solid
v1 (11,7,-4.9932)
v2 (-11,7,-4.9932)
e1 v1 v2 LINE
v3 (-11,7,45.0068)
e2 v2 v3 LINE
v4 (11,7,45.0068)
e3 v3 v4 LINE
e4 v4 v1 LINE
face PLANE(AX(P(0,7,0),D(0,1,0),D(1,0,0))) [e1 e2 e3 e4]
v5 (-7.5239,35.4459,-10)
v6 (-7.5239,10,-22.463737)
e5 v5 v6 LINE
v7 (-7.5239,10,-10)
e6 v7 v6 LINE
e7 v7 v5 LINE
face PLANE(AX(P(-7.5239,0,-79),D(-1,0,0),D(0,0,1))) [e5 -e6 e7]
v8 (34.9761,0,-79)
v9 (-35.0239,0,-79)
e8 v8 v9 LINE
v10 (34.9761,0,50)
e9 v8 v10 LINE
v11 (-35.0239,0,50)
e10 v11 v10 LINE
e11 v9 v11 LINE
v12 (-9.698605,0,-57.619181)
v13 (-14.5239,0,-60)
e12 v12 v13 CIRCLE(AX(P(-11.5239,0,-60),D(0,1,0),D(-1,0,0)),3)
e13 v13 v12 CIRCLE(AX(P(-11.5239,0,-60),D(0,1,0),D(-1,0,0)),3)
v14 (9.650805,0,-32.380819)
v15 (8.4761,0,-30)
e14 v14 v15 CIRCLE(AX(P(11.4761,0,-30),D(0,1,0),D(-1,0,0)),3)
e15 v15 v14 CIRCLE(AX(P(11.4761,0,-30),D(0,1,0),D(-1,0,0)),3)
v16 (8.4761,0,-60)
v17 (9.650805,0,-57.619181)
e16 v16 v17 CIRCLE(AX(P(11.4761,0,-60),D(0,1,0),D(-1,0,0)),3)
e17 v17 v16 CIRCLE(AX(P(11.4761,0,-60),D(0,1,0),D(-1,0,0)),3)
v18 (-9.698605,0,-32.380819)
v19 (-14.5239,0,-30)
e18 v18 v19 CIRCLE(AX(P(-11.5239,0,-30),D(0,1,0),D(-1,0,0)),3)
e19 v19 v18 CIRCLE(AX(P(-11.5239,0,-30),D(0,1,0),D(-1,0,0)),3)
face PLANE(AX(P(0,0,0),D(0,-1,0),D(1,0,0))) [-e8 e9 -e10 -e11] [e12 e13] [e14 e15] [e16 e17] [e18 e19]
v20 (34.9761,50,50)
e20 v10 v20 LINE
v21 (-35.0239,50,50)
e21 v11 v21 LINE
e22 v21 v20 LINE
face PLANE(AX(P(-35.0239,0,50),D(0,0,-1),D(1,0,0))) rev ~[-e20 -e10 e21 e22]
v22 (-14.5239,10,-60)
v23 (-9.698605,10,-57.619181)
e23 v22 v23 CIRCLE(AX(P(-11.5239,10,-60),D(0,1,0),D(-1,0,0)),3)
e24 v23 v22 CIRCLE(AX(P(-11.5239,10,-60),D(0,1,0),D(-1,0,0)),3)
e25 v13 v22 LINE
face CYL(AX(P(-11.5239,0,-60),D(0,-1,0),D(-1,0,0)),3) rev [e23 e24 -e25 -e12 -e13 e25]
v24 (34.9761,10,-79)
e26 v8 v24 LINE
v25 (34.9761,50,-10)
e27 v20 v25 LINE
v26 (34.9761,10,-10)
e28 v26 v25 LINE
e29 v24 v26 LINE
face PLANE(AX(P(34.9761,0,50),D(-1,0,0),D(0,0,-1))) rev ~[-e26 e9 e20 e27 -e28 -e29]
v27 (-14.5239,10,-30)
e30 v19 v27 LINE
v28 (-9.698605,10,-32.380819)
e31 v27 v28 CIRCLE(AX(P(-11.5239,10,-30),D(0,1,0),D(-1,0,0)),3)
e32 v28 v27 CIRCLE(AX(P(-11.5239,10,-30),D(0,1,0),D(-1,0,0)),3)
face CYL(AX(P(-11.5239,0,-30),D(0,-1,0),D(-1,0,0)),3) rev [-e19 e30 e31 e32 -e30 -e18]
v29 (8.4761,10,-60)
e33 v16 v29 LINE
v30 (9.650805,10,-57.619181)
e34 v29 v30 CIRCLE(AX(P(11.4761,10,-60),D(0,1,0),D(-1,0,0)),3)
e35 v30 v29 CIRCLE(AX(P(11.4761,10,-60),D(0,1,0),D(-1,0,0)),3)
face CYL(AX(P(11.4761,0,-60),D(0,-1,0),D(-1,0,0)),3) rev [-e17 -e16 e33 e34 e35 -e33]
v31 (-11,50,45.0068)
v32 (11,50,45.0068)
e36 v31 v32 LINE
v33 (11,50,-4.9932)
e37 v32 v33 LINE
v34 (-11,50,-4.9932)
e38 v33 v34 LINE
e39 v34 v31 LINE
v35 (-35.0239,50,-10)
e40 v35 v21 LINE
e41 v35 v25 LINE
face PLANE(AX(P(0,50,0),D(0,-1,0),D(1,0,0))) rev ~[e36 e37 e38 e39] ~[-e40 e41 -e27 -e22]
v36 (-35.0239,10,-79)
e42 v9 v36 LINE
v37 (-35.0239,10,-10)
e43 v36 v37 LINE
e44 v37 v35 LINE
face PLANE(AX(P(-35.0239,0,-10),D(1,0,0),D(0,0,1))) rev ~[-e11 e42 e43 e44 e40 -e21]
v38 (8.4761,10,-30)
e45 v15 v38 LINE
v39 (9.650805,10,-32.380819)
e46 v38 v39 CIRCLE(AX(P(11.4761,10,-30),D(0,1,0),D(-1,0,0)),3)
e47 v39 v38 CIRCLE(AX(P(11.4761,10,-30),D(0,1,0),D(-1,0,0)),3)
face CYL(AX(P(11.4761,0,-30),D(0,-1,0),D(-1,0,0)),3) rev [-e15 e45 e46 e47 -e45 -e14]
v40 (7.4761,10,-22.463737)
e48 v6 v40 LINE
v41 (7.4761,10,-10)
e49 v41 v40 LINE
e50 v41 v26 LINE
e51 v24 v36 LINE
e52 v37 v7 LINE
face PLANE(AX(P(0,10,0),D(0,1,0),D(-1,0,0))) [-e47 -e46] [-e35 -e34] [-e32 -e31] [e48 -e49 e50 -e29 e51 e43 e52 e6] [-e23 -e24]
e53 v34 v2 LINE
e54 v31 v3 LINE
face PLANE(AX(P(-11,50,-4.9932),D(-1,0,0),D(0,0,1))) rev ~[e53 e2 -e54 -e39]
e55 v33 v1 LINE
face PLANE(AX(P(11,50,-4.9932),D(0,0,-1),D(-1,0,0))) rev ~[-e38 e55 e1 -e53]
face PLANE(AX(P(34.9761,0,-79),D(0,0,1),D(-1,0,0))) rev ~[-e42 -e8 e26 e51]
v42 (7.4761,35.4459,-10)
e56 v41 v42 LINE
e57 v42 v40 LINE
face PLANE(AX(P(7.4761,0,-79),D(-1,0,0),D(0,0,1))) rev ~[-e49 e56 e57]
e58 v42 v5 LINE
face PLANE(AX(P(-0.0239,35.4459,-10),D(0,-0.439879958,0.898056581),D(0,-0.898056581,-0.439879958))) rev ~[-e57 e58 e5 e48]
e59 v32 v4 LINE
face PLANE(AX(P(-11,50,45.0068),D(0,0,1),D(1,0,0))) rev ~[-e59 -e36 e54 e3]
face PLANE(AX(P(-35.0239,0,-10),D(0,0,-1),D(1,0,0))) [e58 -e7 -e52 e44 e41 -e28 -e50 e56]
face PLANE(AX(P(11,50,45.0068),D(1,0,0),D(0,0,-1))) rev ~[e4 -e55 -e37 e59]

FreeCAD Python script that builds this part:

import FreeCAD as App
import Part
import Sketcher
Q = App.Units.Quantity


def add_polygon(sketch, points):
    """Adds a closed chain of lines whose ends are joined by coincident constraints."""
    first, n = sketch.GeometryCount, len(points)
    for a, b in zip(points, points[1:] + points[:1]):
        sketch.addGeometry(Part.LineSegment(App.Vector(*a, 0), App.Vector(*b, 0)), False)
    for i in range(n):
        sketch.addConstraint(Sketcher.Constraint("Coincident", first + i, 2, first + (i + 1) % n, 1))

doc = App.newDocument("Part")
params = doc.addObject("Spreadsheet::Sheet", "Params")
for row, (alias, value) in enumerate([
    ("sketch1_height", "69 mm"),
    ("sketch1_diameter", "6 mm"),
    ("sketch1_width", "70 mm"),
    ("pad1_length", "10 mm"),
    ("sketch2_height", "60 mm"),
    ("sketch2_width", "70 mm"),
    ("pad2_length", "50 mm"),
    ("sketch3_width", "22 mm"),
    ("sketch3_height", "50 mm"),
    ("pocket1_length", "43 mm"),
    ("pad3_length", "15 mm"),
], start=1):
    params.set(f"A{row}", alias)
    params.set(f"B{row}", "=" + value)
    params.setAlias(f"B{row}", alias)

body = doc.addObject("PartDesign::Body", "Body")

# Sketch on XZ plane
sketch1 = doc.addObject("Sketcher::SketchObject", "Sketch")
body.addObject(sketch1)
sketch1.AttachmentSupport = (doc.XZ_Plane, [""])
sketch1.MapMode = "FlatFace"
add_polygon(sketch1, [(35, -10), (35, -79), (-35, -79), (-35, -10)])  # lines 0-3
sketch1.addGeometry(Part.Circle(App.Vector(11.5, -30, 0), App.Vector(0, 0, 1), 3), False)  # 4
sketch1.addGeometry(Part.Circle(App.Vector(-11.5, -30, 0), App.Vector(0, 0, 1), 3), False)  # 5
sketch1.addGeometry(Part.Circle(App.Vector(11.5, -60, 0), App.Vector(0, 0, 1), 3), False)  # 6
sketch1.addGeometry(Part.Circle(App.Vector(-11.5, -60, 0), App.Vector(0, 0, 1), 3), False)  # 7
sketch1.addConstraint([
    Sketcher.Constraint("Vertical", 0),
    Sketcher.Constraint("Horizontal", 1),
    Sketcher.Constraint("Vertical", 2),
    Sketcher.Constraint("Horizontal", 3),
    Sketcher.Constraint("Equal", 4, 5),
    Sketcher.Constraint("Equal", 5, 6),
    Sketcher.Constraint("Equal", 6, 7),
    Sketcher.Constraint("Horizontal", 4, 3, 5, 3),
    Sketcher.Constraint("Horizontal", 6, 3, 7, 3),
    Sketcher.Constraint("Vertical", 4, 3, 6, 3),
    Sketcher.Constraint("Vertical", 5, 3, 7, 3),
    Sketcher.Constraint("DistanceY", 0, 2, 0, 1, Q("69 mm")),
    Sketcher.Constraint("Diameter", 4, Q("6 mm")),
    Sketcher.Constraint("DistanceY", 4, 3, -1, 1, Q("30 mm")),
    Sketcher.Constraint("DistanceY", 6, 3, 4, 3, Q("30 mm")),
    Sketcher.Constraint("DistanceY", 5, 3, 2, 2, Q("20 mm")),
    Sketcher.Constraint("DistanceX", 1, 2, 1, 1, Q("70 mm")),
    Sketcher.Constraint("DistanceX", 5, 3, 4, 3, Q("23 mm")),
    Sketcher.Constraint("DistanceX", 6, 3, 0, 2, Q("23.5 mm")),
    Sketcher.Constraint("DistanceX", -1, 1, 4, 3, Q("11.476 mm")),
])
sketch1.setExpression("Constraints[15]", "Params.sketch1_height")
sketch1.setExpression("Constraints[16]", "Params.sketch1_diameter")
sketch1.setExpression("Constraints[20]", "Params.sketch1_width")
pad1 = doc.addObject("PartDesign::Pad", "Pad")
body.addObject(pad1)
pad1.Profile = sketch1
pad1.setExpression("Length", "Params.pad1_length")
pad1.Reversed = True

# Sketch on XZ plane
sketch2 = doc.addObject("Sketcher::SketchObject", "Sketch001")
body.addObject(sketch2)
sketch2.AttachmentSupport = (doc.XZ_Plane, [""])
sketch2.MapMode = "FlatFace"
add_polygon(sketch2, [(-35, 50), (-35, -10), (35, -10), (35, 50)])  # lines 0-3
sketch2.addConstraint([
    Sketcher.Constraint("Vertical", 0),
    Sketcher.Constraint("Horizontal", 1),
    Sketcher.Constraint("Vertical", 2),
    Sketcher.Constraint("Horizontal", 3),
    Sketcher.Constraint("DistanceY", 0, 2, 0, 1, Q("60 mm")),
    Sketcher.Constraint("DistanceX", 1, 1, 1, 2, Q("70 mm")),
    Sketcher.Constraint("DistanceY", 0, 2, -1, 1, Q("10 mm")),
    Sketcher.Constraint("DistanceX", 0, 2, -1, 1, Q("35.024 mm")),
])
sketch2.setExpression("Constraints[8]", "Params.sketch2_height")
sketch2.setExpression("Constraints[9]", "Params.sketch2_width")
pad2 = doc.addObject("PartDesign::Pad", "Pad001")
body.addObject(pad2)
pad2.Profile = sketch2
pad2.setExpression("Length", "Params.pad2_length")
pad2.Reversed = True

# Sketch on XZ plane
sketch3 = doc.addObject("Sketcher::SketchObject", "Sketch002")
body.addObject(sketch3)
sketch3.AttachmentSupport = (doc.XZ_Plane, [""])
sketch3.MapMode = "FlatFace"
sketch3.AttachmentOffset = App.Placement(App.Vector(0, 0, -50), App.Rotation())
add_polygon(sketch3, [(-11, -5), (-11, 45), (11, 45), (11, -5)])  # lines 0-3
sketch3.addConstraint([
    Sketcher.Constraint("Vertical", 0),
    Sketcher.Constraint("Horizontal", 1),
    Sketcher.Constraint("Vertical", 2),
    Sketcher.Constraint("Horizontal", 3),
    Sketcher.Constraint("DistanceX", 1, 1, 1, 2, Q("22 mm")),
    Sketcher.Constraint("DistanceY", 0, 1, 0, 2, Q("50 mm")),
    Sketcher.Constraint("DistanceX", 0, 2, -1, 1, Q("11 mm")),
    Sketcher.Constraint("DistanceY", -1, 1, 0, 2, Q("45.0068 mm")),
])
sketch3.setExpression("Constraints[8]", "Params.sketch3_width")
sketch3.setExpression("Constraints[9]", "Params.sketch3_height")
pocket1 = doc.addObject("PartDesign::Pocket", "Pocket")
body.addObject(pocket1)
pocket1.Profile = sketch3
pocket1.setExpression("Length", "Params.pocket1_length")
pocket1.Reversed = True

# Sketch on YZ plane
sketch4 = doc.addObject("Sketcher::SketchObject", "Sketch003")
body.addObject(sketch4)
sketch4.AttachmentSupport = (doc.YZ_Plane, [""])
sketch4.MapMode = "FlatFace"
sketch4.AttachmentOffset = App.Placement(App.Vector(0, 0, -0.0239), App.Rotation())
add_polygon(sketch4, [(10, -22), (10, -10), (35, -10)])  # lines 0-2
sketch4.addConstraint([
    Sketcher.Constraint("Vertical", 0),
    Sketcher.Constraint("Horizontal", 1),
    Sketcher.Constraint("DistanceX", -1, 1, 0, 2, Q("10 mm")),
    Sketcher.Constraint("DistanceY", 0, 2, -1, 1, Q("10 mm")),
    Sketcher.Constraint("DistanceX", 1, 1, 1, 2, Q("25.446 mm")),
    Sketcher.Constraint("DistanceY", 0, 1, 0, 2, Q("12.4637 mm")),
])
pad3 = doc.addObject("PartDesign::Pad", "Pad002")
body.addObject(pad3)
pad3.Profile = sketch4
pad3.setExpression("Length", "Params.pad3_length")
pad3.Midplane = True

doc.recompute()
